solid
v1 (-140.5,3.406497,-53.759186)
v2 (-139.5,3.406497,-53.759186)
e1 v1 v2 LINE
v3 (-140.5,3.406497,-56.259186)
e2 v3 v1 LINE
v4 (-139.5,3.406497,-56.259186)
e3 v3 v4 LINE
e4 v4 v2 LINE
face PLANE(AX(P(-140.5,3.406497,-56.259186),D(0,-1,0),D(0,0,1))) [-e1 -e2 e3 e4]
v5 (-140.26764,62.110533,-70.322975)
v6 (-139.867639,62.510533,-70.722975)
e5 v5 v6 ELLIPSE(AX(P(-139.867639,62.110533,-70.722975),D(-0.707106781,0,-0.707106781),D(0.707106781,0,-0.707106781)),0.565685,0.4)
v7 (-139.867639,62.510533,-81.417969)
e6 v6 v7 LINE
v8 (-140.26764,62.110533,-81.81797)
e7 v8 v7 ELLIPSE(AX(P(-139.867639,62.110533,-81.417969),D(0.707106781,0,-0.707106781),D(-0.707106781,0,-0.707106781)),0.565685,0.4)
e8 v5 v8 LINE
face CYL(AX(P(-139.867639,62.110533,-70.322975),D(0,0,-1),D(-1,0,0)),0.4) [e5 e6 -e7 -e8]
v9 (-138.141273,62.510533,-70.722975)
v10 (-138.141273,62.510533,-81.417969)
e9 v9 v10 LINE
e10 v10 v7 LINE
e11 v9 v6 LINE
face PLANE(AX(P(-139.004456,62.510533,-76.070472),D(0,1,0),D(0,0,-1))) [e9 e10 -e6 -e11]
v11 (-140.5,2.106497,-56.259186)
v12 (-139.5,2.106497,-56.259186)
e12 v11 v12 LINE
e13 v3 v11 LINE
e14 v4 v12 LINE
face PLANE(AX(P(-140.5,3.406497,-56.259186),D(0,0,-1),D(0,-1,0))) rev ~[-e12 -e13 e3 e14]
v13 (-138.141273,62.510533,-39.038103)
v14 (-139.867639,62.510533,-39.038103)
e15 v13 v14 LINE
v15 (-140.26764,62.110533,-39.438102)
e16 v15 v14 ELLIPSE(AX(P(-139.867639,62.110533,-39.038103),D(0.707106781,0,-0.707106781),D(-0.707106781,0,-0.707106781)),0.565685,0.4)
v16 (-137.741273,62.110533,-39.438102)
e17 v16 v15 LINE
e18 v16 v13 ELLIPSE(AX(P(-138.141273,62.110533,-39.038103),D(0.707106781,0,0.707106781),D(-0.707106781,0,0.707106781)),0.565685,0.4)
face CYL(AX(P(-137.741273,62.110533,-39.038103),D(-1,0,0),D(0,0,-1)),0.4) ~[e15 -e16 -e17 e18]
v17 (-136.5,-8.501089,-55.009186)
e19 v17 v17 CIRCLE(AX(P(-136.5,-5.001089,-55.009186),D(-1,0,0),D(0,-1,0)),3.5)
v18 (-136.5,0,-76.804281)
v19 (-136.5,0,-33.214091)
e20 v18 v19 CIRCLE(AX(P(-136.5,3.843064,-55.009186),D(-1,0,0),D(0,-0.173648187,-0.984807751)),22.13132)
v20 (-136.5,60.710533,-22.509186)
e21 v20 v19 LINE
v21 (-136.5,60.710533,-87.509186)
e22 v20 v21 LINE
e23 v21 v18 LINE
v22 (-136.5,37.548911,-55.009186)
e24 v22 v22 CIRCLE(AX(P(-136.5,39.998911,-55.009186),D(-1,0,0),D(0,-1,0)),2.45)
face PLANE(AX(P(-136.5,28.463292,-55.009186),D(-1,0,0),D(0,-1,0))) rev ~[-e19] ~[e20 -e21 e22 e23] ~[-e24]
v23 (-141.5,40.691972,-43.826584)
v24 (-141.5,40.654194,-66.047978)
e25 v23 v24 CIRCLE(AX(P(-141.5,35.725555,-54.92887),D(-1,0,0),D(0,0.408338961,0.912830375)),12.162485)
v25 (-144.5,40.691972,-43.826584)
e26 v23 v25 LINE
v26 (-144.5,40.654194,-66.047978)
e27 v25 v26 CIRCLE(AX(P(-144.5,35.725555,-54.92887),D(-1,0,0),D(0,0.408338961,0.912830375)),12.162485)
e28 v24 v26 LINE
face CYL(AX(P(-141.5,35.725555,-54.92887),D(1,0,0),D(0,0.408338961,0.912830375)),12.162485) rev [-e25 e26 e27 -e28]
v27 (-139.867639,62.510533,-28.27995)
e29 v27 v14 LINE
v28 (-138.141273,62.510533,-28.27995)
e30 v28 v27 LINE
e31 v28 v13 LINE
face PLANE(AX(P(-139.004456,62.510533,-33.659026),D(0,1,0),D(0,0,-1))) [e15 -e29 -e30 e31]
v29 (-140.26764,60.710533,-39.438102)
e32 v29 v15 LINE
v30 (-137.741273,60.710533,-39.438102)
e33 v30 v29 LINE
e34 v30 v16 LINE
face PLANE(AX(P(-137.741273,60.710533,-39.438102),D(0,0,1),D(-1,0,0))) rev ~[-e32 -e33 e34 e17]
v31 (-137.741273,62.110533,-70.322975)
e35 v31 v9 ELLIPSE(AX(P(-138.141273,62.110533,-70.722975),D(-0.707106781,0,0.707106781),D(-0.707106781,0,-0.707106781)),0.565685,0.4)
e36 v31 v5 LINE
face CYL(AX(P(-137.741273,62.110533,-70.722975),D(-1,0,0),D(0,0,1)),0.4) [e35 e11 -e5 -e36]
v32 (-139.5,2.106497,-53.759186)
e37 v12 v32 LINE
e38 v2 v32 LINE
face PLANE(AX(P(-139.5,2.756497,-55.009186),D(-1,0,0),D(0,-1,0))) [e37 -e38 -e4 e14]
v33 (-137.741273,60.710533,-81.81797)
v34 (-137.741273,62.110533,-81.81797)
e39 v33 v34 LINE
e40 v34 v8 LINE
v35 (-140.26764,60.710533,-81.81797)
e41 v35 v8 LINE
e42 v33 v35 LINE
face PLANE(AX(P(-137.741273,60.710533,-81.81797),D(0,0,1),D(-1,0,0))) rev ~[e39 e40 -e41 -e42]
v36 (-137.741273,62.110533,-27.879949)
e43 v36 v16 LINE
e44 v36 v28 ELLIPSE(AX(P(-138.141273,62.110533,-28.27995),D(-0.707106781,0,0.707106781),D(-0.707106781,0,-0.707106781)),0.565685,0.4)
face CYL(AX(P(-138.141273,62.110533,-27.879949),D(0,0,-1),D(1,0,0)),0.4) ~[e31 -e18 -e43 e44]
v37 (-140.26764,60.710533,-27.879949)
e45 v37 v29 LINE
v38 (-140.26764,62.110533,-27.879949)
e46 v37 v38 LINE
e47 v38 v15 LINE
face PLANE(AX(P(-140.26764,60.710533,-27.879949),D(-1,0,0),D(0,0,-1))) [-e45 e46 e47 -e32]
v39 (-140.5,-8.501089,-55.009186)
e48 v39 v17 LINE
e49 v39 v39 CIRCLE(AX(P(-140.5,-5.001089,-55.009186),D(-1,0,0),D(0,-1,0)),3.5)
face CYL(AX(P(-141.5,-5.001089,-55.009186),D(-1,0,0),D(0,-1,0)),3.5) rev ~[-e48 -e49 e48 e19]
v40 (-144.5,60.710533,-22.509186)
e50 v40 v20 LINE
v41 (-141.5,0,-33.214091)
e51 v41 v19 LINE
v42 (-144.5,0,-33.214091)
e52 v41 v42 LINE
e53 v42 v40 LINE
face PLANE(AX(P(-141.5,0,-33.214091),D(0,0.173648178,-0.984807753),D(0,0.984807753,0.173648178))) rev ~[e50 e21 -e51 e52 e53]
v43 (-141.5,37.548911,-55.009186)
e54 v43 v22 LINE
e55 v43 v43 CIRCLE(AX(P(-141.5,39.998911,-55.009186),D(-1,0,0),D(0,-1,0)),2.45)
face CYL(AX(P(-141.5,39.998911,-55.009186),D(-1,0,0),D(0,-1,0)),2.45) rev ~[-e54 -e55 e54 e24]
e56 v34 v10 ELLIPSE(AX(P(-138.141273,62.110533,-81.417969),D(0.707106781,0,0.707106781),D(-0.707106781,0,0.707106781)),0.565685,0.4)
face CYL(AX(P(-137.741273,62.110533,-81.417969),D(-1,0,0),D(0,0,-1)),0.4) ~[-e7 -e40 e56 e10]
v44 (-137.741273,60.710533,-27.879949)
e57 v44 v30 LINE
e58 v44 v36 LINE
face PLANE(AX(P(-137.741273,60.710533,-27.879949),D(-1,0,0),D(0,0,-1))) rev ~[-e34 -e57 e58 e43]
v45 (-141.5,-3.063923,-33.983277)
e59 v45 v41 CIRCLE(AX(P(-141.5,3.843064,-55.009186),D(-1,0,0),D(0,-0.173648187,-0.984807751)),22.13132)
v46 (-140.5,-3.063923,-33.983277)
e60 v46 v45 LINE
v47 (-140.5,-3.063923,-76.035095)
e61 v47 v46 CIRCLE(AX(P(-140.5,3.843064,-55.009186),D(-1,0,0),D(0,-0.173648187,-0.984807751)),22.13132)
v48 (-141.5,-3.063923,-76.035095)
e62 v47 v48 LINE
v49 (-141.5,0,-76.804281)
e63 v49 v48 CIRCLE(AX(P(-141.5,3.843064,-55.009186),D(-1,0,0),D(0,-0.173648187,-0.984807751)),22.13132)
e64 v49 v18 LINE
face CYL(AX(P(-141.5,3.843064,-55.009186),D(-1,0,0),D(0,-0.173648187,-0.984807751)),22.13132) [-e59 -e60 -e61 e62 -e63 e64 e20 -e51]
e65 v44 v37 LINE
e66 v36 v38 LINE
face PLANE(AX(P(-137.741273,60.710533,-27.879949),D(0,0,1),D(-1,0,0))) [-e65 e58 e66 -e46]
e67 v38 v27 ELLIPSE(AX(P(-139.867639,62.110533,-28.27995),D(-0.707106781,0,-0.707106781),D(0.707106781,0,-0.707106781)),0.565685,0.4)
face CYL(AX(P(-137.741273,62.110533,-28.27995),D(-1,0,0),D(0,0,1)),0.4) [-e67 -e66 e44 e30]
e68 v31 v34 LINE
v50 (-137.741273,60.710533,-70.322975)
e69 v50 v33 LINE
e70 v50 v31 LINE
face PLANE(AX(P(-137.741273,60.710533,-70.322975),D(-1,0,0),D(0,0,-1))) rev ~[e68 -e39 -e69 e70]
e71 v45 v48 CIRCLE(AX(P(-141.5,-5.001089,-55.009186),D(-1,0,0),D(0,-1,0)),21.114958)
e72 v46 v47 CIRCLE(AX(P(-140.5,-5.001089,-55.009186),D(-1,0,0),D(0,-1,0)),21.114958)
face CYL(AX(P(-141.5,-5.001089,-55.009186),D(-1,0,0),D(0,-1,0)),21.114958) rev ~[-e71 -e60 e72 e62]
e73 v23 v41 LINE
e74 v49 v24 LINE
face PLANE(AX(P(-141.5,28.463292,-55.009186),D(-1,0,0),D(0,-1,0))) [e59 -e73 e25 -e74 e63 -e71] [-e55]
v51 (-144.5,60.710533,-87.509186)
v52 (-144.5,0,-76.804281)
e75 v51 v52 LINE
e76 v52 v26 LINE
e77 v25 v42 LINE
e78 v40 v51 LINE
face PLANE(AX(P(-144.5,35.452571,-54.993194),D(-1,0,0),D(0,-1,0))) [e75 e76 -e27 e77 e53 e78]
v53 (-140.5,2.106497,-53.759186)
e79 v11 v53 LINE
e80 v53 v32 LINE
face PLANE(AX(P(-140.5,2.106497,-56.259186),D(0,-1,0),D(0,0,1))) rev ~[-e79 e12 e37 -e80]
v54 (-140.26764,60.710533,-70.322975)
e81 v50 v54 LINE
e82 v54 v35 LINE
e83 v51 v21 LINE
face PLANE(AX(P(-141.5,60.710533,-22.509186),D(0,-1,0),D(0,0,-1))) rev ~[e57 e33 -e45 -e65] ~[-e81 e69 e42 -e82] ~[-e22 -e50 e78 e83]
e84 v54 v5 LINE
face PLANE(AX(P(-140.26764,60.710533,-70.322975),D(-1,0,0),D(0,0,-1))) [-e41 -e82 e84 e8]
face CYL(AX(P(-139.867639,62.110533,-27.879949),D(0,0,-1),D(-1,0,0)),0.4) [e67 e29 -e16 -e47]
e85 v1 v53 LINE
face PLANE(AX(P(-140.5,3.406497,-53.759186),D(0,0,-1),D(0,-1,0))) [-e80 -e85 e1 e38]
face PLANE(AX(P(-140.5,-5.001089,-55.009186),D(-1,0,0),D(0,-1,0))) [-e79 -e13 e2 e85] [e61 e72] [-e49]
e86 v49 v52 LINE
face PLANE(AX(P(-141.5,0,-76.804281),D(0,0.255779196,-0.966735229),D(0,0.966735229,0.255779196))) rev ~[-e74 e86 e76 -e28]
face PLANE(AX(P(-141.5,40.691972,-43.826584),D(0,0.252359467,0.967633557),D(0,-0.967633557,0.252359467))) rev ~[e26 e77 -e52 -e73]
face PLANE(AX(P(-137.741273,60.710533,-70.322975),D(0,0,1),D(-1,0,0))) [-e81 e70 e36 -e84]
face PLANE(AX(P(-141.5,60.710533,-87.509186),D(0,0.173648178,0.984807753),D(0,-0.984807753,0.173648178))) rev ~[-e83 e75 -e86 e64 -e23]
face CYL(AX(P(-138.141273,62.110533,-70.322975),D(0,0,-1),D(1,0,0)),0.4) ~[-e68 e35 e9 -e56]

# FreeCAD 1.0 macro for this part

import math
import FreeCAD as App
import Part
import Sketcher
Q = App.Units.Quantity


def edges_at(feature, points):
    """Names of the edges that pass closest to the given points."""
    edges = feature.Shape.Edges
    near = lambda p: min(range(len(edges)), key=lambda i: edges[i].distToShape(Part.Vertex(*p))[0])
    return sorted({f"Edge{near(p) + 1}" for p in points})

doc = App.newDocument("Part")
body = doc.addObject("PartDesign::Body", "Body")

# Sketch on YZ plane
sketch1 = body.newObject("Sketcher::SketchObject", "Sketch")
sketch1.AttachmentSupport = (doc.getObject("YZ_Plane"), [""])
sketch1.MapMode = "FlatFace"
sketch1.AttachmentOffset = App.Placement(App.Vector(0, 0, -141.5), App.Rotation())
sketch1.addGeometry(Part.LineSegment(App.Vector(60.7, -22.5, 0), App.Vector(60.7, -87.5, 0)), False)
sketch1.addGeometry(Part.LineSegment(App.Vector(60.7, -87.5, 0), App.Vector(0, -76.8, 0)), False)
sketch1.addGeometry(Part.ArcOfCircle(Part.Circle(App.Vector(3.8, -55, 0), App.Vector(0, 0, 1), 22.1), math.radians(100), math.radians(260)), False)
sketch1.addGeometry(Part.LineSegment(App.Vector(0, -33.2, 0), App.Vector(60.7, -22.5, 0)), False)
sketch1.addGeometry(Part.Circle(App.Vector(40, -55, 0), App.Vector(0, 0, 1), 2.5), False)
sketch1.addGeometry(Part.Circle(App.Vector(-5, -55, 0), App.Vector(0, 0, 1), 3.5), False)
sketch1.addConstraint(Sketcher.Constraint("Coincident", 0, 2, 1, 1))
sketch1.addConstraint(Sketcher.Constraint("Tangent", 1, 2, 2, 2))
sketch1.addConstraint(Sketcher.Constraint("Tangent", 2, 1, 3, 1))
sketch1.addConstraint(Sketcher.Constraint("Coincident", 3, 2, 0, 1))
sketch1.addConstraint(Sketcher.Constraint("Vertical", 0))
sketch1.addConstraint(Sketcher.Constraint("PointOnObject", 1, 2, -2))
sketch1.addConstraint(Sketcher.Constraint("PointOnObject", 2, 1, -2))
sketch1.addConstraint(Sketcher.Constraint("Horizontal", 2, 3, 4, 3))
sketch1.addConstraint(Sketcher.Constraint("Horizontal", 4, 3, 5, 3))
sketch1.addConstraint(Sketcher.Constraint("Diameter", 5, 7.0))
sketch1.addConstraint(Sketcher.Constraint("Diameter", 4, 4.9))
sketch1.addConstraint(Sketcher.Constraint("DistanceY", 0, 2, 0, 1, 65.0))
sketch1.addConstraint(Sketcher.Constraint("Angle", 1, Q("170 deg")))
sketch1.addConstraint(Sketcher.Constraint("DistanceX", 5, 3, 4, 3, 45.0))
sketch1.addConstraint(Sketcher.Constraint("Radius", 2, 22.13132))
sketch1.addConstraint(Sketcher.Constraint("DistanceX", -1, 1, 4, 3, 39.998911))
sketch1.addConstraint(Sketcher.Constraint("DistanceY", 1, 2, -1, 1, 76.804281))
pad1 = body.newObject("PartDesign::Pad", "Pad")
pad1.Profile = sketch1
pad1.Length = 5

# Sketch on YZ plane
sketch2 = body.newObject("Sketcher::SketchObject", "Sketch001")
sketch2.AttachmentSupport = (doc.getObject("YZ_Plane"), [""])
sketch2.MapMode = "FlatFace"
sketch2.AttachmentOffset = App.Placement(App.Vector(0, 0, -141.5), App.Rotation())
sketch2.addGeometry(Part.LineSegment(App.Vector(0, -77, 0), App.Vector(41, -66, 0)), False)
sketch2.addGeometry(Part.ArcOfCircle(Part.Circle(App.Vector(36, -55, 0), App.Vector(0, 0, 1), 12), math.radians(-66), math.radians(66)), False)
sketch2.addGeometry(Part.LineSegment(App.Vector(41, -44, 0), App.Vector(0, -33, 0)), False)
sketch2.addGeometry(Part.LineSegment(App.Vector(0, -33, 0), App.Vector(61, -23, 0)), False)
sketch2.addGeometry(Part.LineSegment(App.Vector(61, -23, 0), App.Vector(61, -88, 0)), False)
sketch2.addGeometry(Part.LineSegment(App.Vector(61, -88, 0), App.Vector(0, -77, 0)), False)
sketch2.addConstraint(Sketcher.Constraint("Coincident", 0, 2, 1, 1))
sketch2.addConstraint(Sketcher.Constraint("Coincident", 1, 2, 2, 1))
sketch2.addConstraint(Sketcher.Constraint("Coincident", 2, 2, 3, 1))
sketch2.addConstraint(Sketcher.Constraint("Coincident", 3, 2, 4, 1))
sketch2.addConstraint(Sketcher.Constraint("Coincident", 4, 2, 5, 1))
sketch2.addConstraint(Sketcher.Constraint("Coincident", 5, 2, 0, 1))
sketch2.addConstraint(Sketcher.Constraint("Vertical", 4))
sketch2.addConstraint(Sketcher.Constraint("PointOnObject", 2, 2, -2))
sketch2.addConstraint(Sketcher.Constraint("PointOnObject", 5, 2, -2))
sketch2.addConstraint(Sketcher.Constraint("Equal", 0, 2))
sketch2.addConstraint(Sketcher.Constraint("Equal", 3, 5))
sketch2.addConstraint(Sketcher.Constraint("DistanceY", 4, 2, 4, 1, 65.0))
sketch2.addConstraint(Sketcher.Constraint("Angle", 3, Q("10 deg")))
sketch2.addConstraint(Sketcher.Constraint("Radius", 1, 12.162485))
sketch2.addConstraint(Sketcher.Constraint("Distance", 0, 42.05308))
sketch2.addConstraint(Sketcher.Constraint("Distance", 3, 61.647091))
sketch2.addConstraint(Sketcher.Constraint("DistanceY", 1, 3, -1, 1, 54.92887))
sketch2.addConstraint(Sketcher.Constraint("DistanceY", 0, 2, -1, 1, 66.047978))
sketch2.addConstraint(Sketcher.Constraint("DistanceY", 2, 2, -1, 1, 33.214091))
pad2 = body.newObject("PartDesign::Pad", "Pad001")
pad2.Profile = sketch2
pad2.Length = 3
pad2.Reversed = True

# Sketch on YZ plane
sketch3 = body.newObject("Sketcher::SketchObject", "Sketch002")
sketch3.AttachmentSupport = (doc.getObject("YZ_Plane"), [""])
sketch3.MapMode = "FlatFace"
sketch3.AttachmentOffset = App.Placement(App.Vector(0, 0, -141.5), App.Rotation())
sketch3.addGeometry(Part.Circle(App.Vector(-5, -55, 0), App.Vector(0, 0, 1), 21), False)
sketch3.addConstraint(Sketcher.Constraint("Diameter", 0, 42.229916))
sketch3.addConstraint(Sketcher.Constraint("DistanceX", 0, 3, -1, 1, 5.001089))
sketch3.addConstraint(Sketcher.Constraint("DistanceY", 0, 3, -1, 1, 55.009186))
pocket1 = body.newObject("PartDesign::Pocket", "Pocket")
pocket1.Profile = sketch3
pocket1.Length = 1
pocket1.Reversed = True

# Sketch on XZ plane
sketch4 = body.newObject("Sketcher::SketchObject", "Sketch003")
sketch4.AttachmentSupport = (doc.getObject("XZ_Plane"), [""])
sketch4.MapMode = "FlatFace"
sketch4.AttachmentOffset = App.Placement(App.Vector(0, 0, -60.710533), App.Rotation())
sketch4.addGeometry(Part.LineSegment(App.Vector(-140.3, -27.9, 0), App.Vector(-137.7, -27.9, 0)), False)
sketch4.addGeometry(Part.LineSegment(App.Vector(-137.7, -27.9, 0), App.Vector(-137.7, -39.4, 0)), False)
sketch4.addGeometry(Part.LineSegment(App.Vector(-137.7, -39.4, 0), App.Vector(-140.3, -39.4, 0)), False)
sketch4.addGeometry(Part.LineSegment(App.Vector(-140.3, -39.4, 0), App.Vector(-140.3, -27.9, 0)), False)
sketch4.addGeometry(Part.LineSegment(App.Vector(-140.3, -70.3, 0), App.Vector(-137.7, -70.3, 0)), False)
sketch4.addGeometry(Part.LineSegment(App.Vector(-137.7, -70.3, 0), App.Vector(-137.7, -81.8, 0)), False)
sketch4.addGeometry(Part.LineSegment(App.Vector(-137.7, -81.8, 0), App.Vector(-140.3, -81.8, 0)), False)
sketch4.addGeometry(Part.LineSegment(App.Vector(-140.3, -81.8, 0), App.Vector(-140.3, -70.3, 0)), False)
sketch4.addConstraint(Sketcher.Constraint("Coincident", 0, 2, 1, 1))
sketch4.addConstraint(Sketcher.Constraint("Coincident", 1, 2, 2, 1))
sketch4.addConstraint(Sketcher.Constraint("Coincident", 2, 2, 3, 1))
sketch4.addConstraint(Sketcher.Constraint("Coincident", 3, 2, 0, 1))
sketch4.addConstraint(Sketcher.Constraint("Coincident", 4, 2, 5, 1))
sketch4.addConstraint(Sketcher.Constraint("Coincident", 5, 2, 6, 1))
sketch4.addConstraint(Sketcher.Constraint("Coincident", 6, 2, 7, 1))
sketch4.addConstraint(Sketcher.Constraint("Coincident", 7, 2, 4, 1))
sketch4.addConstraint(Sketcher.Constraint("Horizontal", 0))
sketch4.addConstraint(Sketcher.Constraint("Vertical", 1))
sketch4.addConstraint(Sketcher.Constraint("Horizontal", 2))
sketch4.addConstraint(Sketcher.Constraint("Vertical", 3))
sketch4.addConstraint(Sketcher.Constraint("Horizontal", 4))
sketch4.addConstraint(Sketcher.Constraint("Vertical", 5))
sketch4.addConstraint(Sketcher.Constraint("Horizontal", 6))
sketch4.addConstraint(Sketcher.Constraint("Vertical", 7))
sketch4.addConstraint(Sketcher.Constraint("Vertical", 1, 2, 4, 2))
sketch4.addConstraint(Sketcher.Constraint("Vertical", 3, 2, 6, 2))
sketch4.addConstraint(Sketcher.Constraint("DistanceX", 0, 1, 0, 2, 2.526367))
sketch4.addConstraint(Sketcher.Constraint("DistanceY", 1, 2, 1, 1, 11.558153))
sketch4.addConstraint(Sketcher.Constraint("DistanceY", 5, 2, 5, 1, 11.494995))
sketch4.addConstraint(Sketcher.Constraint("DistanceY", 0, 2, -1, 1, 27.879949))
sketch4.addConstraint(Sketcher.Constraint("DistanceX", 2, 2, -1, 1, 140.26764))
sketch4.addConstraint(Sketcher.Constraint("DistanceY", 5, 2, -1, 1, 81.81797))
pad3 = body.newObject("PartDesign::Pad", "Pad002")
pad3.Profile = sketch4
pad3.Length = 1.8
pad3.Reversed = True

# Sketch on YZ plane
sketch5 = body.newObject("Sketcher::SketchObject", "Sketch004")
sketch5.AttachmentSupport = (doc.getObject("YZ_Plane"), [""])
sketch5.MapMode = "FlatFace"
sketch5.AttachmentOffset = App.Placement(App.Vector(0, 0, -140.5), App.Rotation())
sketch5.addGeometry(Part.LineSegment(App.Vector(3.4, -53.8, 0), App.Vector(3.4, -56.3, 0)), False)
sketch5.addGeometry(Part.LineSegment(App.Vector(3.4, -56.3, 0), App.Vector(2.1, -56.3, 0)), False)
sketch5.addGeometry(Part.LineSegment(App.Vector(2.1, -56.3, 0), App.Vector(2.1, -53.8, 0)), False)
sketch5.addGeometry(Part.LineSegment(App.Vector(2.1, -53.8, 0), App.Vector(3.4, -53.8, 0)), False)
sketch5.addConstraint(Sketcher.Constraint("Coincident", 0, 2, 1, 1))
sketch5.addConstraint(Sketcher.Constraint("Coincident", 1, 2, 2, 1))
sketch5.addConstraint(Sketcher.Constraint("Coincident", 2, 2, 3, 1))
sketch5.addConstraint(Sketcher.Constraint("Coincident", 3, 2, 0, 1))
sketch5.addConstraint(Sketcher.Constraint("Vertical", 0))
sketch5.addConstraint(Sketcher.Constraint("Horizontal", 1))
sketch5.addConstraint(Sketcher.Constraint("Vertical", 2))
sketch5.addConstraint(Sketcher.Constraint("Horizontal", 3))
sketch5.addConstraint(Sketcher.Constraint("DistanceX", 1, 2, 1, 1, 1.3))
sketch5.addConstraint(Sketcher.Constraint("DistanceY", 0, 2, 0, 1, 2.5))
sketch5.addConstraint(Sketcher.Constraint("DistanceX", -1, 1, 0, 2, 3.406497))
sketch5.addConstraint(Sketcher.Constraint("DistanceY", 0, 2, -1, 1, 56.259186))
pocket2 = body.newObject("PartDesign::Pocket", "Pocket001")
pocket2.Profile = sketch5
pocket2.Length = 1
pocket2.Reversed = True
doc.recompute()

fillet = body.newObject("PartDesign::Fillet", "Fillet")
fillet.Base = (pocket2, edges_at(pocket2, [
    (-140.268, 62.511, -76.07),
    (-139.004, 62.511, -81.818),
    (-137.741, 62.511, -76.07),
    (-139.004, 62.511, -70.323),
    (-140.268, 62.511, -33.659),
    (-139.004, 62.511, -39.438),
    (-137.741, 62.511, -33.659),
    (-139.004, 62.511, -27.88),
]))
fillet.Radius = 0.4

doc.recompute()
